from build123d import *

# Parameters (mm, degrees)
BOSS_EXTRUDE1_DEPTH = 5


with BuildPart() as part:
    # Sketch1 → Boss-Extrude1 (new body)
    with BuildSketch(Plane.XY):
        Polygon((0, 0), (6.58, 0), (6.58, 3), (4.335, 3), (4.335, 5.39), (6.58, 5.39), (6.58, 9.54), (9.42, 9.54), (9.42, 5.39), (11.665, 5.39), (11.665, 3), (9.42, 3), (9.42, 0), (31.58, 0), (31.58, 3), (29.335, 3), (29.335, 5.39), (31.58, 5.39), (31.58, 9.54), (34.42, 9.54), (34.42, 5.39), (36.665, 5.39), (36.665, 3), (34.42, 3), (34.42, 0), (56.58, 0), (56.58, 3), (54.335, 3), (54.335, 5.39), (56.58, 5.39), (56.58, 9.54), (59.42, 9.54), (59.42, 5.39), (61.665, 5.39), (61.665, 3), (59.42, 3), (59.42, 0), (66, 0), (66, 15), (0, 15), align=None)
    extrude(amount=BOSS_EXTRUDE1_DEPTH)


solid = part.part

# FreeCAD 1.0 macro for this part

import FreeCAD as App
import Part
import Sketcher

V = App.Vector
Q = App.Units.Quantity

doc = App.newDocument("Part")
body = doc.addObject("PartDesign::Body", "Body")

# Sketch on XY plane
sketch1 = body.newObject("Sketcher::SketchObject", "Sketch")
sketch1.AttachmentSupport = (doc.getObject("XY_Plane"), [""])
sketch1.MapMode = "FlatFace"
sketch1.addGeometry(Part.LineSegment(V(0, 0, 0), V(6.6, 0, 0)), False)
sketch1.addGeometry(Part.LineSegment(V(6.6, 0, 0), V(6.6, 3, 0)), False)
sketch1.addGeometry(Part.LineSegment(V(6.6, 3, 0), V(4.3, 3, 0)), False)
sketch1.addGeometry(Part.LineSegment(V(4.3, 3, 0), V(4.3, 5.4, 0)), False)
sketch1.addGeometry(Part.LineSegment(V(4.3, 5.4, 0), V(6.6, 5.4, 0)), False)
sketch1.addGeometry(Part.LineSegment(V(6.6, 5.4, 0), V(6.6, 9.5, 0)), False)
sketch1.addGeometry(Part.LineSegment(V(6.6, 9.5, 0), V(9.4, 9.5, 0)), False)
sketch1.addGeometry(Part.LineSegment(V(9.4, 9.5, 0), V(9.4, 5.4, 0)), False)
sketch1.addGeometry(Part.LineSegment(V(9.4, 5.4, 0), V(11.7, 5.4, 0)), False)
sketch1.addGeometry(Part.LineSegment(V(11.7, 5.4, 0), V(11.7, 3, 0)), False)
sketch1.addGeometry(Part.LineSegment(V(11.7, 3, 0), V(9.4, 3, 0)), False)
sketch1.addGeometry(Part.LineSegment(V(9.4, 3, 0), V(9.4, 0, 0)), False)
sketch1.addGeometry(Part.LineSegment(V(9.4, 0, 0), V(31.6, 0, 0)), False)
sketch1.addGeometry(Part.LineSegment(V(31.6, 0, 0), V(31.6, 3, 0)), False)
sketch1.addGeometry(Part.LineSegment(V(31.6, 3, 0), V(29.3, 3, 0)), False)
sketch1.addGeometry(Part.LineSegment(V(29.3, 3, 0), V(29.3, 5.4, 0)), False)
sketch1.addGeometry(Part.LineSegment(V(29.3, 5.4, 0), V(31.6, 5.4, 0)), False)
sketch1.addGeometry(Part.LineSegment(V(31.6, 5.4, 0), V(31.6, 9.5, 0)), False)
sketch1.addGeometry(Part.LineSegment(V(31.6, 9.5, 0), V(34.4, 9.5, 0)), False)
sketch1.addGeometry(Part.LineSegment(V(34.4, 9.5, 0), V(34.4, 5.4, 0)), False)
sketch1.addGeometry(Part.LineSegment(V(34.4, 5.4, 0), V(36.7, 5.4, 0)), False)
sketch1.addGeometry(Part.LineSegment(V(36.7, 5.4, 0), V(36.7, 3, 0)), False)
sketch1.addGeometry(Part.LineSegment(V(36.7, 3, 0), V(34.4, 3, 0)), False)
sketch1.addGeometry(Part.LineSegment(V(34.4, 3, 0), V(34.4, 0, 0)), False)
sketch1.addGeometry(Part.LineSegment(V(34.4, 0, 0), V(56.6, 0, 0)), False)
sketch1.addGeometry(Part.LineSegment(V(56.6, 0, 0), V(56.6, 3, 0)), False)
sketch1.addGeometry(Part.LineSegment(V(56.6, 3, 0), V(54.3, 3, 0)), False)
sketch1.addGeometry(Part.LineSegment(V(54.3, 3, 0), V(54.3, 5.4, 0)), False)
sketch1.addGeometry(Part.LineSegment(V(54.3, 5.4, 0), V(56.6, 5.4, 0)), False)
sketch1.addGeometry(Part.LineSegment(V(56.6, 5.4, 0), V(56.6, 9.5, 0)), False)
sketch1.addGeometry(Part.LineSegment(V(56.6, 9.5, 0), V(59.4, 9.5, 0)), False)
sketch1.addGeometry(Part.LineSegment(V(59.4, 9.5, 0), V(59.4, 5.4, 0)), False)
sketch1.addGeometry(Part.LineSegment(V(59.4, 5.4, 0), V(61.7, 5.4, 0)), False)
sketch1.addGeometry(Part.LineSegment(V(61.7, 5.4, 0), V(61.7, 3, 0)), False)
sketch1.addGeometry(Part.LineSegment(V(61.7, 3, 0), V(59.4, 3, 0)), False)
sketch1.addGeometry(Part.LineSegment(V(59.4, 3, 0), V(59.4, 0, 0)), False)
sketch1.addGeometry(Part.LineSegment(V(59.4, 0, 0), V(66, 0, 0)), False)
sketch1.addGeometry(Part.LineSegment(V(66, 0, 0), V(66, 15, 0)), False)
sketch1.addGeometry(Part.LineSegment(V(66, 15, 0), V(0, 15, 0)), False)
sketch1.addGeometry(Part.LineSegment(V(0, 15, 0), V(0, 0, 0)), False)
sketch1.addConstraint(Sketcher.Constraint("Coincident", 0, 2, 1, 1))
sketch1.addConstraint(Sketcher.Constraint("Coincident", 1, 2, 2, 1))
sketch1.addConstraint(Sketcher.Constraint("Coincident", 2, 2, 3, 1))
sketch1.addConstraint(Sketcher.Constraint("Coincident", 3, 2, 4, 1))
sketch1.addConstraint(Sketcher.Constraint("Coincident", 4, 2, 5, 1))
sketch1.addConstraint(Sketcher.Constraint("Coincident", 5, 2, 6, 1))
sketch1.addConstraint(Sketcher.Constraint("Coincident", 6, 2, 7, 1))
sketch1.addConstraint(Sketcher.Constraint("Coincident", 7, 2, 8, 1))
sketch1.addConstraint(Sketcher.Constraint("Coincident", 8, 2, 9, 1))
sketch1.addConstraint(Sketcher.Constraint("Coincident", 9, 2, 10, 1))
sketch1.addConstraint(Sketcher.Constraint("Coincident", 10, 2, 11, 1))
sketch1.addConstraint(Sketcher.Constraint("Coincident", 11, 2, 12, 1))
sketch1.addConstraint(Sketcher.Constraint("Coincident", 12, 2, 13, 1))
sketch1.addConstraint(Sketcher.Constraint("Coincident", 13, 2, 14, 1))
sketch1.addConstraint(Sketcher.Constraint("Coincident", 14, 2, 15, 1))
sketch1.addConstraint(Sketcher.Constraint("Coincident", 15, 2, 16, 1))
sketch1.addConstraint(Sketcher.Constraint("Coincident", 16, 2, 17, 1))
sketch1.addConstraint(Sketcher.Constraint("Coincident", 17, 2, 18, 1))
sketch1.addConstraint(Sketcher.Constraint("Coincident", 18, 2, 19, 1))
sketch1.addConstraint(Sketcher.Constraint("Coincident", 19, 2, 20, 1))
sketch1.addConstraint(Sketcher.Constraint("Coincident", 20, 2, 21, 1))
sketch1.addConstraint(Sketcher.Constraint("Coincident", 21, 2, 22, 1))
sketch1.addConstraint(Sketcher.Constraint("Coincident", 22, 2, 23, 1))
sketch1.addConstraint(Sketcher.Constraint("Coincident", 23, 2, 24, 1))
sketch1.addConstraint(Sketcher.Constraint("Coincident", 24, 2, 25, 1))
sketch1.addConstraint(Sketcher.Constraint("Coincident", 25, 2, 26, 1))
sketch1.addConstraint(Sketcher.Constraint("Coincident", 26, 2, 27, 1))
sketch1.addConstraint(Sketcher.Constraint("Coincident", 27, 2, 28, 1))
sketch1.addConstraint(Sketcher.Constraint("Coincident", 28, 2, 29, 1))
sketch1.addConstraint(Sketcher.Constraint("Coincident", 29, 2, 30, 1))
sketch1.addConstraint(Sketcher.Constraint("Coincident", 30, 2, 31, 1))
sketch1.addConstraint(Sketcher.Constraint("Coincident", 31, 2, 32, 1))
sketch1.addConstraint(Sketcher.Constraint("Coincident", 32, 2, 33, 1))
sketch1.addConstraint(Sketcher.Constraint("Coincident", 33, 2, 34, 1))
sketch1.addConstraint(Sketcher.Constraint("Coincident", 34, 2, 35, 1))
sketch1.addConstraint(Sketcher.Constraint("Coincident", 35, 2, 36, 1))
sketch1.addConstraint(Sketcher.Constraint("Coincident", 36, 2, 37, 1))
sketch1.addConstraint(Sketcher.Constraint("Coincident", 37, 2, 38, 1))
sketch1.addConstraint(Sketcher.Constraint("Coincident", 38, 2, 39, 1))
sketch1.addConstraint(Sketcher.Constraint("Coincident", 39, 2, 0, 1))
sketch1.addConstraint(Sketcher.Constraint("Horizontal", 0))
sketch1.addConstraint(Sketcher.Constraint("Vertical", 1))
sketch1.addConstraint(Sketcher.Constraint("Horizontal", 2))
sketch1.addConstraint(Sketcher.Constraint("Vertical", 3))
sketch1.addConstraint(Sketcher.Constraint("Horizontal", 4))
sketch1.addConstraint(Sketcher.Constraint("Vertical", 5))
sketch1.addConstraint(Sketcher.Constraint("Horizontal", 6))
sketch1.addConstraint(Sketcher.Constraint("Vertical", 7))
sketch1.addConstraint(Sketcher.Constraint("Horizontal", 8))
sketch1.addConstraint(Sketcher.Constraint("Vertical", 9))
sketch1.addConstraint(Sketcher.Constraint("Horizontal", 10))
sketch1.addConstraint(Sketcher.Constraint("Vertical", 11))
sketch1.addConstraint(Sketcher.Constraint("Horizontal", 12))
sketch1.addConstraint(Sketcher.Constraint("Vertical", 13))
sketch1.addConstraint(Sketcher.Constraint("Horizontal", 14))
sketch1.addConstraint(Sketcher.Constraint("Vertical", 15))
sketch1.addConstraint(Sketcher.Constraint("Horizontal", 16))
sketch1.addConstraint(Sketcher.Constraint("Vertical", 17))
sketch1.addConstraint(Sketcher.Constraint("Horizontal", 18))
sketch1.addConstraint(Sketcher.Constraint("Vertical", 19))
sketch1.addConstraint(Sketcher.Constraint("Horizontal", 20))
sketch1.addConstraint(Sketcher.Constraint("Vertical", 21))
sketch1.addConstraint(Sketcher.Constraint("Horizontal", 22))
sketch1.addConstraint(Sketcher.Constraint("Vertical", 23))
sketch1.addConstraint(Sketcher.Constraint("Horizontal", 24))
sketch1.addConstraint(Sketcher.Constraint("Vertical", 25))
sketch1.addConstraint(Sketcher.Constraint("Horizontal", 26))
sketch1.addConstraint(Sketcher.Constraint("Vertical", 27))
sketch1.addConstraint(Sketcher.Constraint("Horizontal", 28))
sketch1.addConstraint(Sketcher.Constraint("Vertical", 29))
sketch1.addConstraint(Sketcher.Constraint("Horizontal", 30))
sketch1.addConstraint(Sketcher.Constraint("Vertical", 31))
sketch1.addConstraint(Sketcher.Constraint("Horizontal", 32))
sketch1.addConstraint(Sketcher.Constraint("Vertical", 33))
sketch1.addConstraint(Sketcher.Constraint("Horizontal", 34))
sketch1.addConstraint(Sketcher.Constraint("Vertical", 35))
sketch1.addConstraint(Sketcher.Constraint("Horizontal", 36))
sketch1.addConstraint(Sketcher.Constraint("Vertical", 37))
sketch1.addConstraint(Sketcher.Constraint("Horizontal", 38))
sketch1.addConstraint(Sketcher.Constraint("Vertical", 39))
sketch1.addConstraint(Sketcher.Constraint("Coincident", 39, 2, -1, 1))
sketch1.addConstraint(Sketcher.Constraint("PointOnObject", 11, 2, -1))
sketch1.addConstraint(Sketcher.Constraint("PointOnObject", 23, 2, -1))
sketch1.addConstraint(Sketcher.Constraint("PointOnObject", 35, 2, -1))
sketch1.addConstraint(Sketcher.Constraint("Horizontal", 4, 2, 7, 2))
sketch1.addConstraint(Sketcher.Constraint("Horizontal", 2, 2, 9, 2))
sketch1.addConstraint(Sketcher.Constraint("Horizontal", 10, 2, 13, 2))
sketch1.addConstraint(Sketcher.Constraint("Horizontal", 8, 2, 15, 2))
sketch1.addConstraint(Sketcher.Constraint("Horizontal", 6, 2, 17, 2))
sketch1.addConstraint(Sketcher.Constraint("Horizontal", 16, 2, 19, 2))
sketch1.addConstraint(Sketcher.Constraint("Horizontal", 14, 2, 21, 2))
sketch1.addConstraint(Sketcher.Constraint("Horizontal", 22, 2, 25, 2))
sketch1.addConstraint(Sketcher.Constraint("Horizontal", 20, 2, 27, 2))
sketch1.addConstraint(Sketcher.Constraint("Horizontal", 18, 2, 29, 2))
sketch1.addConstraint(Sketcher.Constraint("Horizontal", 28, 2, 31, 2))
sketch1.addConstraint(Sketcher.Constraint("Horizontal", 26, 2, 33, 2))
sketch1.addConstraint(Sketcher.Constraint("Vertical", 1, 2, 4, 2))
sketch1.addConstraint(Sketcher.Constraint("Vertical", 7, 2, 10, 2))
sketch1.addConstraint(Sketcher.Constraint("Vertical", 13, 2, 16, 2))
sketch1.addConstraint(Sketcher.Constraint("Vertical", 19, 2, 22, 2))
sketch1.addConstraint(Sketcher.Constraint("Vertical", 25, 2, 28, 2))
sketch1.addConstraint(Sketcher.Constraint("Vertical", 31, 2, 34, 2))
sketch1.addConstraint(Sketcher.Constraint("Equal", 4, 8))
sketch1.addConstraint(Sketcher.Constraint("Equal", 10, 14))
sketch1.addConstraint(Sketcher.Constraint("Equal", 6, 18))
sketch1.addConstraint(Sketcher.Constraint("Equal", 16, 20))
sketch1.addConstraint(Sketcher.Constraint("Equal", 12, 24))
sketch1.addConstraint(Sketcher.Constraint("Equal", 22, 26))
sketch1.addConstraint(Sketcher.Constraint("Equal", 18, 30))
sketch1.addConstraint(Sketcher.Constraint("Equal", 28, 32))
sketch1.addConstraint(Sketcher.Constraint("Equal", 0, 36))
sketch1.addConstraint(Sketcher.Constraint("DistanceX", 38, 2, 38, 1, Q("66 mm")))
sketch1.addConstraint(Sketcher.Constraint("DistanceY", 1, 1, 1, 2, Q("3 mm")))
sketch1.addConstraint(Sketcher.Constraint("DistanceY", 37, 1, 37, 2, Q("15 mm")))
sketch1.addConstraint(Sketcher.Constraint("DistanceX", 0, 1, 0, 2, Q("6.58 mm")))
sketch1.addConstraint(Sketcher.Constraint("DistanceX", 6, 1, 6, 2, Q("2.84 mm")))
sketch1.addConstraint(Sketcher.Constraint("DistanceY", 3, 1, 3, 2, Q("2.39 mm")))
sketch1.addConstraint(Sketcher.Constraint("DistanceY", 5, 1, 5, 2, Q("4.15 mm")))
sketch1.addConstraint(Sketcher.Constraint("DistanceX", 2, 2, 2, 1, Q("2.245 mm")))
pad1 = body.newObject("PartDesign::Pad", "Pad")
pad1.Profile = sketch1
pad1.Length = 5

doc.recompute()
